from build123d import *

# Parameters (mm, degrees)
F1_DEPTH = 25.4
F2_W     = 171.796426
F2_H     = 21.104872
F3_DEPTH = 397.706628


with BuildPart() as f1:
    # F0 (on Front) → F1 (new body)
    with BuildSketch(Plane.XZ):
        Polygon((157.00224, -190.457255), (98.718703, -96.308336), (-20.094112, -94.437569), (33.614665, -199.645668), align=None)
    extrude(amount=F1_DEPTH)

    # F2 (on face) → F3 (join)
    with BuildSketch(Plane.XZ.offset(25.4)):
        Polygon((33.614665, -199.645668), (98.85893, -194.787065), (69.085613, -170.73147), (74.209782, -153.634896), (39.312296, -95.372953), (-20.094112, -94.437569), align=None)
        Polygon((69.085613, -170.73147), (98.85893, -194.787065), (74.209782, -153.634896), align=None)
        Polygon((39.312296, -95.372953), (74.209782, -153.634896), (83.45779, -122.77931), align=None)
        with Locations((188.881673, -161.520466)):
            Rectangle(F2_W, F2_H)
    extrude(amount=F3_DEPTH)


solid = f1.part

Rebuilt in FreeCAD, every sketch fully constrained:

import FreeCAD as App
import Part
import Sketcher
from FreeCAD import Vector
Q = App.Units.Quantity


def add_polygon(sketch, points):
    """Adds a closed chain of lines whose ends are joined by coincident constraints."""
    first, n = sketch.GeometryCount, len(points)
    for a, b in zip(points, points[1:] + points[:1]):
        sketch.addGeometry(Part.LineSegment(App.Vector(*a, 0), App.Vector(*b, 0)), False)
    for i in range(n):
        sketch.addConstraint(Sketcher.Constraint("Coincident", first + i, 2, first + (i + 1) % n, 1))

doc = App.newDocument("Part")
body = doc.addObject("PartDesign::Body", "Body")

# Sketch on XZ plane
sketch1 = body.newObject("Sketcher::SketchObject", "Sketch")
sketch1.AttachmentSupport = (doc.getObject("XZ_Plane"), [""])
sketch1.MapMode = "FlatFace"
add_polygon(sketch1, [(157.00224, -190.457255), (98.718703, -96.308336), (-20.094112, -94.437569), (33.614665, -199.645668)])  # lines 0-3
sketch1.addConstraint([
    Sketcher.Constraint("DistanceY", 2, 2, 1, 2, 105.208099),
    Sketcher.Constraint("DistanceX", 1, 2, -1, 1, 20.094112),
    Sketcher.Constraint("DistanceY", 1, 2, -1, 1, 94.437569),
    Sketcher.Constraint("DistanceX", -1, 1, 3, 2, 157.00224),
    Sketcher.Constraint("DistanceX", 2, 2, 0, 2, 65.104038),
    Sketcher.Constraint("DistanceY", 3, 2, 0, 2, 94.148919),
    Sketcher.Constraint("Distance", 0, 110.729353),
    Sketcher.Constraint("Distance", 1, 118.827542),
])
pad1 = body.newObject("PartDesign::Pad", "Pad")
pad1.Profile = sketch1
pad1.Length = Q("1 in")

# Sketch on XZ plane
sketch2 = body.newObject("Sketcher::SketchObject", "Sketch001")
sketch2.AttachmentSupport = (doc.getObject("XZ_Plane"), [""])
sketch2.MapMode = "FlatFace"
sketch2.AttachmentOffset = App.Placement(Vector(0, 0, 1 * 25.4), App.Rotation())
add_polygon(sketch2, [(34, -200), (99, -195), (74, -154), (83, -123), (39, -95), (-20, -94)])  # lines 0-5
add_polygon(sketch2, [(103, -151), (103, -172), (275, -172), (275, -151)])  # lines 6-9
sketch2.addConstraint([
    Sketcher.Constraint("Vertical", 6),
    Sketcher.Constraint("Horizontal", 7),
    Sketcher.Constraint("Vertical", 8),
    Sketcher.Constraint("Horizontal", 9),
    Sketcher.Constraint("DistanceY", 6, 2, -1, 1, 172.072902),
    Sketcher.Constraint("DistanceX", 4, 2, 2, 2, 103.551902),
    Sketcher.Constraint("DistanceY", 5, 2, 4, 2, 105.208099),
    Sketcher.Constraint("Distance", 0, 65.42492),
    Sketcher.Constraint("Distance", 1, 47.969589),
    Sketcher.Constraint("Distance", 3, 51.96088),
    Sketcher.Constraint("Distance", 4, 59.413772),
    Sketcher.Constraint("DistanceX", 7, 1, 7, 2, 171.796426),
    Sketcher.Constraint("DistanceY", 6, 2, 6, 1, 21.104872),
    Sketcher.Constraint("DistanceX", -1, 1, 0, 2, 98.85893),
    Sketcher.Constraint("DistanceX", -1, 1, 2, 2, 83.45779),
    Sketcher.Constraint("DistanceY", 2, 2, -1, 1, 122.77931),
    Sketcher.Constraint("DistanceY", 4, 2, -1, 1, 94.437569),
    Sketcher.Constraint("DistanceX", -1, 1, 6, 2, 102.98346),
    Sketcher.Constraint("DistanceY", 0, 2, 1, 2, 41.152169),
    Sketcher.Constraint("DistanceX", 5, 2, 3, 2, 5.697631),
])
pad2 = body.newObject("PartDesign::Pad", "Pad001")
pad2.Profile = sketch2
pad2.Length = 397.706628

doc.recompute()
